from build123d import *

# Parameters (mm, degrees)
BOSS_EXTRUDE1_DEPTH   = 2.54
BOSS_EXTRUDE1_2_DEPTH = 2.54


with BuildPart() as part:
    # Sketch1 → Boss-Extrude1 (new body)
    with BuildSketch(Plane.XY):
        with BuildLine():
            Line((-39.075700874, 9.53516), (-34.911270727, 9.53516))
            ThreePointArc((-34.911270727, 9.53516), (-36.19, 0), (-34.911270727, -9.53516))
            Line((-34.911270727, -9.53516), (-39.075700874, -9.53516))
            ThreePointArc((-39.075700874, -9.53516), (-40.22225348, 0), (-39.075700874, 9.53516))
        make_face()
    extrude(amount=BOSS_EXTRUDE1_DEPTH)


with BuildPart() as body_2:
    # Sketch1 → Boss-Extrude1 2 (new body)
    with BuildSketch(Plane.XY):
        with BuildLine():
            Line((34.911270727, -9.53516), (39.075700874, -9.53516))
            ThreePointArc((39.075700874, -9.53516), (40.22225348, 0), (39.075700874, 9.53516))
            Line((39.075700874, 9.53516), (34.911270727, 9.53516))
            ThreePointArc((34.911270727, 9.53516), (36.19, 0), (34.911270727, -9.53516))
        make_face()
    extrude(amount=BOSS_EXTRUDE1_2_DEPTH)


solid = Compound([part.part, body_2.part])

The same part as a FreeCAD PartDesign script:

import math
import FreeCAD as App
import Part
import Sketcher
Q = App.Units.Quantity

doc = App.newDocument("Part")
body = doc.addObject("PartDesign::Body", "Body")

sketch1 = body.newObject("Sketcher::SketchObject", "Sketch")
sketch1.AttachmentSupport = (doc.getObject("XY_Plane"), [""])
sketch1.MapMode = "FlatFace"
sketch1.addGeometry([
    Part.LineSegment(App.Vector(-34.9, 9.5, 0), App.Vector(-39.1, 9.5, 0)),
    Part.ArcOfCircle(Part.Circle(App.Vector(0, 0, 0), App.Vector(0, 0, 1), 40.2), math.radians(166), math.radians(194)),
    Part.LineSegment(App.Vector(-39.1, -9.5, 0), App.Vector(-34.9, -9.5, 0)),
    Part.ArcOfCircle(Part.Circle(App.Vector(0, 0, 0), App.Vector(0, 0, 1), 36.2), math.radians(165), math.radians(195)),
], False)
sketch1.addConstraint([
    Sketcher.Constraint("Coincident", 0, 2, 1, 1),
    Sketcher.Constraint("Coincident", 1, 2, 2, 1),
    Sketcher.Constraint("Coincident", 2, 2, 3, 2),
    Sketcher.Constraint("Coincident", 3, 1, 0, 1),
    Sketcher.Constraint("Horizontal", 0),
    Sketcher.Constraint("Horizontal", 2),
    Sketcher.Constraint("Coincident", 1, 3, -1, 1),
    Sketcher.Constraint("Coincident", 3, 3, -1, 1),
    Sketcher.Constraint("Vertical", 0, 2, 1, 2),
    Sketcher.Constraint("Radius", 3, 36.19),
    Sketcher.Constraint("DistanceY", -1, 1, 0, 2, Q("0.3754 in")),
    Sketcher.Constraint("Radius", 1, 40.222253),
])
pad1 = body.newObject("PartDesign::Pad", "Pad")
pad1.Profile = sketch1
pad1.Length = Q("0.1 in")
body2 = doc.addObject("PartDesign::Body", "Body001")

sketch2 = body2.newObject("Sketcher::SketchObject", "Sketch001")
sketch2.AttachmentSupport = (doc.getObject("XY_Plane001"), [""])
sketch2.MapMode = "FlatFace"
sketch2.addGeometry([
    Part.LineSegment(App.Vector(34.9, -9.5, 0), App.Vector(39.1, -9.5, 0)),
    Part.ArcOfCircle(Part.Circle(App.Vector(0, 0, 0), App.Vector(0, 0, 1), 40.2), math.radians(-14), math.radians(14)),
    Part.LineSegment(App.Vector(39.1, 9.5, 0), App.Vector(34.9, 9.5, 0)),
    Part.ArcOfCircle(Part.Circle(App.Vector(0, 0, 0), App.Vector(0, 0, 1), 36.2), math.radians(-15), math.radians(15)),
], False)
sketch2.addConstraint([
    Sketcher.Constraint("Coincident", 0, 2, 1, 1),
    Sketcher.Constraint("Coincident", 1, 2, 2, 1),
    Sketcher.Constraint("Coincident", 2, 2, 3, 2),
    Sketcher.Constraint("Coincident", 3, 1, 0, 1),
    Sketcher.Constraint("Horizontal", 0),
    Sketcher.Constraint("Horizontal", 2),
    Sketcher.Constraint("Coincident", 1, 3, -1, 1),
    Sketcher.Constraint("Coincident", 3, 3, -1, 1),
    Sketcher.Constraint("Vertical", 0, 2, 1, 2),
    Sketcher.Constraint("Radius", 3, 36.19),
    Sketcher.Constraint("DistanceY", 0, 2, -1, 1, Q("0.3754 in")),
    Sketcher.Constraint("Radius", 1, 40.222253),
])
pad2 = body2.newObject("PartDesign::Pad", "Pad001")
pad2.Profile = sketch2
pad2.Length = Q("0.1 in")

doc.recompute()
